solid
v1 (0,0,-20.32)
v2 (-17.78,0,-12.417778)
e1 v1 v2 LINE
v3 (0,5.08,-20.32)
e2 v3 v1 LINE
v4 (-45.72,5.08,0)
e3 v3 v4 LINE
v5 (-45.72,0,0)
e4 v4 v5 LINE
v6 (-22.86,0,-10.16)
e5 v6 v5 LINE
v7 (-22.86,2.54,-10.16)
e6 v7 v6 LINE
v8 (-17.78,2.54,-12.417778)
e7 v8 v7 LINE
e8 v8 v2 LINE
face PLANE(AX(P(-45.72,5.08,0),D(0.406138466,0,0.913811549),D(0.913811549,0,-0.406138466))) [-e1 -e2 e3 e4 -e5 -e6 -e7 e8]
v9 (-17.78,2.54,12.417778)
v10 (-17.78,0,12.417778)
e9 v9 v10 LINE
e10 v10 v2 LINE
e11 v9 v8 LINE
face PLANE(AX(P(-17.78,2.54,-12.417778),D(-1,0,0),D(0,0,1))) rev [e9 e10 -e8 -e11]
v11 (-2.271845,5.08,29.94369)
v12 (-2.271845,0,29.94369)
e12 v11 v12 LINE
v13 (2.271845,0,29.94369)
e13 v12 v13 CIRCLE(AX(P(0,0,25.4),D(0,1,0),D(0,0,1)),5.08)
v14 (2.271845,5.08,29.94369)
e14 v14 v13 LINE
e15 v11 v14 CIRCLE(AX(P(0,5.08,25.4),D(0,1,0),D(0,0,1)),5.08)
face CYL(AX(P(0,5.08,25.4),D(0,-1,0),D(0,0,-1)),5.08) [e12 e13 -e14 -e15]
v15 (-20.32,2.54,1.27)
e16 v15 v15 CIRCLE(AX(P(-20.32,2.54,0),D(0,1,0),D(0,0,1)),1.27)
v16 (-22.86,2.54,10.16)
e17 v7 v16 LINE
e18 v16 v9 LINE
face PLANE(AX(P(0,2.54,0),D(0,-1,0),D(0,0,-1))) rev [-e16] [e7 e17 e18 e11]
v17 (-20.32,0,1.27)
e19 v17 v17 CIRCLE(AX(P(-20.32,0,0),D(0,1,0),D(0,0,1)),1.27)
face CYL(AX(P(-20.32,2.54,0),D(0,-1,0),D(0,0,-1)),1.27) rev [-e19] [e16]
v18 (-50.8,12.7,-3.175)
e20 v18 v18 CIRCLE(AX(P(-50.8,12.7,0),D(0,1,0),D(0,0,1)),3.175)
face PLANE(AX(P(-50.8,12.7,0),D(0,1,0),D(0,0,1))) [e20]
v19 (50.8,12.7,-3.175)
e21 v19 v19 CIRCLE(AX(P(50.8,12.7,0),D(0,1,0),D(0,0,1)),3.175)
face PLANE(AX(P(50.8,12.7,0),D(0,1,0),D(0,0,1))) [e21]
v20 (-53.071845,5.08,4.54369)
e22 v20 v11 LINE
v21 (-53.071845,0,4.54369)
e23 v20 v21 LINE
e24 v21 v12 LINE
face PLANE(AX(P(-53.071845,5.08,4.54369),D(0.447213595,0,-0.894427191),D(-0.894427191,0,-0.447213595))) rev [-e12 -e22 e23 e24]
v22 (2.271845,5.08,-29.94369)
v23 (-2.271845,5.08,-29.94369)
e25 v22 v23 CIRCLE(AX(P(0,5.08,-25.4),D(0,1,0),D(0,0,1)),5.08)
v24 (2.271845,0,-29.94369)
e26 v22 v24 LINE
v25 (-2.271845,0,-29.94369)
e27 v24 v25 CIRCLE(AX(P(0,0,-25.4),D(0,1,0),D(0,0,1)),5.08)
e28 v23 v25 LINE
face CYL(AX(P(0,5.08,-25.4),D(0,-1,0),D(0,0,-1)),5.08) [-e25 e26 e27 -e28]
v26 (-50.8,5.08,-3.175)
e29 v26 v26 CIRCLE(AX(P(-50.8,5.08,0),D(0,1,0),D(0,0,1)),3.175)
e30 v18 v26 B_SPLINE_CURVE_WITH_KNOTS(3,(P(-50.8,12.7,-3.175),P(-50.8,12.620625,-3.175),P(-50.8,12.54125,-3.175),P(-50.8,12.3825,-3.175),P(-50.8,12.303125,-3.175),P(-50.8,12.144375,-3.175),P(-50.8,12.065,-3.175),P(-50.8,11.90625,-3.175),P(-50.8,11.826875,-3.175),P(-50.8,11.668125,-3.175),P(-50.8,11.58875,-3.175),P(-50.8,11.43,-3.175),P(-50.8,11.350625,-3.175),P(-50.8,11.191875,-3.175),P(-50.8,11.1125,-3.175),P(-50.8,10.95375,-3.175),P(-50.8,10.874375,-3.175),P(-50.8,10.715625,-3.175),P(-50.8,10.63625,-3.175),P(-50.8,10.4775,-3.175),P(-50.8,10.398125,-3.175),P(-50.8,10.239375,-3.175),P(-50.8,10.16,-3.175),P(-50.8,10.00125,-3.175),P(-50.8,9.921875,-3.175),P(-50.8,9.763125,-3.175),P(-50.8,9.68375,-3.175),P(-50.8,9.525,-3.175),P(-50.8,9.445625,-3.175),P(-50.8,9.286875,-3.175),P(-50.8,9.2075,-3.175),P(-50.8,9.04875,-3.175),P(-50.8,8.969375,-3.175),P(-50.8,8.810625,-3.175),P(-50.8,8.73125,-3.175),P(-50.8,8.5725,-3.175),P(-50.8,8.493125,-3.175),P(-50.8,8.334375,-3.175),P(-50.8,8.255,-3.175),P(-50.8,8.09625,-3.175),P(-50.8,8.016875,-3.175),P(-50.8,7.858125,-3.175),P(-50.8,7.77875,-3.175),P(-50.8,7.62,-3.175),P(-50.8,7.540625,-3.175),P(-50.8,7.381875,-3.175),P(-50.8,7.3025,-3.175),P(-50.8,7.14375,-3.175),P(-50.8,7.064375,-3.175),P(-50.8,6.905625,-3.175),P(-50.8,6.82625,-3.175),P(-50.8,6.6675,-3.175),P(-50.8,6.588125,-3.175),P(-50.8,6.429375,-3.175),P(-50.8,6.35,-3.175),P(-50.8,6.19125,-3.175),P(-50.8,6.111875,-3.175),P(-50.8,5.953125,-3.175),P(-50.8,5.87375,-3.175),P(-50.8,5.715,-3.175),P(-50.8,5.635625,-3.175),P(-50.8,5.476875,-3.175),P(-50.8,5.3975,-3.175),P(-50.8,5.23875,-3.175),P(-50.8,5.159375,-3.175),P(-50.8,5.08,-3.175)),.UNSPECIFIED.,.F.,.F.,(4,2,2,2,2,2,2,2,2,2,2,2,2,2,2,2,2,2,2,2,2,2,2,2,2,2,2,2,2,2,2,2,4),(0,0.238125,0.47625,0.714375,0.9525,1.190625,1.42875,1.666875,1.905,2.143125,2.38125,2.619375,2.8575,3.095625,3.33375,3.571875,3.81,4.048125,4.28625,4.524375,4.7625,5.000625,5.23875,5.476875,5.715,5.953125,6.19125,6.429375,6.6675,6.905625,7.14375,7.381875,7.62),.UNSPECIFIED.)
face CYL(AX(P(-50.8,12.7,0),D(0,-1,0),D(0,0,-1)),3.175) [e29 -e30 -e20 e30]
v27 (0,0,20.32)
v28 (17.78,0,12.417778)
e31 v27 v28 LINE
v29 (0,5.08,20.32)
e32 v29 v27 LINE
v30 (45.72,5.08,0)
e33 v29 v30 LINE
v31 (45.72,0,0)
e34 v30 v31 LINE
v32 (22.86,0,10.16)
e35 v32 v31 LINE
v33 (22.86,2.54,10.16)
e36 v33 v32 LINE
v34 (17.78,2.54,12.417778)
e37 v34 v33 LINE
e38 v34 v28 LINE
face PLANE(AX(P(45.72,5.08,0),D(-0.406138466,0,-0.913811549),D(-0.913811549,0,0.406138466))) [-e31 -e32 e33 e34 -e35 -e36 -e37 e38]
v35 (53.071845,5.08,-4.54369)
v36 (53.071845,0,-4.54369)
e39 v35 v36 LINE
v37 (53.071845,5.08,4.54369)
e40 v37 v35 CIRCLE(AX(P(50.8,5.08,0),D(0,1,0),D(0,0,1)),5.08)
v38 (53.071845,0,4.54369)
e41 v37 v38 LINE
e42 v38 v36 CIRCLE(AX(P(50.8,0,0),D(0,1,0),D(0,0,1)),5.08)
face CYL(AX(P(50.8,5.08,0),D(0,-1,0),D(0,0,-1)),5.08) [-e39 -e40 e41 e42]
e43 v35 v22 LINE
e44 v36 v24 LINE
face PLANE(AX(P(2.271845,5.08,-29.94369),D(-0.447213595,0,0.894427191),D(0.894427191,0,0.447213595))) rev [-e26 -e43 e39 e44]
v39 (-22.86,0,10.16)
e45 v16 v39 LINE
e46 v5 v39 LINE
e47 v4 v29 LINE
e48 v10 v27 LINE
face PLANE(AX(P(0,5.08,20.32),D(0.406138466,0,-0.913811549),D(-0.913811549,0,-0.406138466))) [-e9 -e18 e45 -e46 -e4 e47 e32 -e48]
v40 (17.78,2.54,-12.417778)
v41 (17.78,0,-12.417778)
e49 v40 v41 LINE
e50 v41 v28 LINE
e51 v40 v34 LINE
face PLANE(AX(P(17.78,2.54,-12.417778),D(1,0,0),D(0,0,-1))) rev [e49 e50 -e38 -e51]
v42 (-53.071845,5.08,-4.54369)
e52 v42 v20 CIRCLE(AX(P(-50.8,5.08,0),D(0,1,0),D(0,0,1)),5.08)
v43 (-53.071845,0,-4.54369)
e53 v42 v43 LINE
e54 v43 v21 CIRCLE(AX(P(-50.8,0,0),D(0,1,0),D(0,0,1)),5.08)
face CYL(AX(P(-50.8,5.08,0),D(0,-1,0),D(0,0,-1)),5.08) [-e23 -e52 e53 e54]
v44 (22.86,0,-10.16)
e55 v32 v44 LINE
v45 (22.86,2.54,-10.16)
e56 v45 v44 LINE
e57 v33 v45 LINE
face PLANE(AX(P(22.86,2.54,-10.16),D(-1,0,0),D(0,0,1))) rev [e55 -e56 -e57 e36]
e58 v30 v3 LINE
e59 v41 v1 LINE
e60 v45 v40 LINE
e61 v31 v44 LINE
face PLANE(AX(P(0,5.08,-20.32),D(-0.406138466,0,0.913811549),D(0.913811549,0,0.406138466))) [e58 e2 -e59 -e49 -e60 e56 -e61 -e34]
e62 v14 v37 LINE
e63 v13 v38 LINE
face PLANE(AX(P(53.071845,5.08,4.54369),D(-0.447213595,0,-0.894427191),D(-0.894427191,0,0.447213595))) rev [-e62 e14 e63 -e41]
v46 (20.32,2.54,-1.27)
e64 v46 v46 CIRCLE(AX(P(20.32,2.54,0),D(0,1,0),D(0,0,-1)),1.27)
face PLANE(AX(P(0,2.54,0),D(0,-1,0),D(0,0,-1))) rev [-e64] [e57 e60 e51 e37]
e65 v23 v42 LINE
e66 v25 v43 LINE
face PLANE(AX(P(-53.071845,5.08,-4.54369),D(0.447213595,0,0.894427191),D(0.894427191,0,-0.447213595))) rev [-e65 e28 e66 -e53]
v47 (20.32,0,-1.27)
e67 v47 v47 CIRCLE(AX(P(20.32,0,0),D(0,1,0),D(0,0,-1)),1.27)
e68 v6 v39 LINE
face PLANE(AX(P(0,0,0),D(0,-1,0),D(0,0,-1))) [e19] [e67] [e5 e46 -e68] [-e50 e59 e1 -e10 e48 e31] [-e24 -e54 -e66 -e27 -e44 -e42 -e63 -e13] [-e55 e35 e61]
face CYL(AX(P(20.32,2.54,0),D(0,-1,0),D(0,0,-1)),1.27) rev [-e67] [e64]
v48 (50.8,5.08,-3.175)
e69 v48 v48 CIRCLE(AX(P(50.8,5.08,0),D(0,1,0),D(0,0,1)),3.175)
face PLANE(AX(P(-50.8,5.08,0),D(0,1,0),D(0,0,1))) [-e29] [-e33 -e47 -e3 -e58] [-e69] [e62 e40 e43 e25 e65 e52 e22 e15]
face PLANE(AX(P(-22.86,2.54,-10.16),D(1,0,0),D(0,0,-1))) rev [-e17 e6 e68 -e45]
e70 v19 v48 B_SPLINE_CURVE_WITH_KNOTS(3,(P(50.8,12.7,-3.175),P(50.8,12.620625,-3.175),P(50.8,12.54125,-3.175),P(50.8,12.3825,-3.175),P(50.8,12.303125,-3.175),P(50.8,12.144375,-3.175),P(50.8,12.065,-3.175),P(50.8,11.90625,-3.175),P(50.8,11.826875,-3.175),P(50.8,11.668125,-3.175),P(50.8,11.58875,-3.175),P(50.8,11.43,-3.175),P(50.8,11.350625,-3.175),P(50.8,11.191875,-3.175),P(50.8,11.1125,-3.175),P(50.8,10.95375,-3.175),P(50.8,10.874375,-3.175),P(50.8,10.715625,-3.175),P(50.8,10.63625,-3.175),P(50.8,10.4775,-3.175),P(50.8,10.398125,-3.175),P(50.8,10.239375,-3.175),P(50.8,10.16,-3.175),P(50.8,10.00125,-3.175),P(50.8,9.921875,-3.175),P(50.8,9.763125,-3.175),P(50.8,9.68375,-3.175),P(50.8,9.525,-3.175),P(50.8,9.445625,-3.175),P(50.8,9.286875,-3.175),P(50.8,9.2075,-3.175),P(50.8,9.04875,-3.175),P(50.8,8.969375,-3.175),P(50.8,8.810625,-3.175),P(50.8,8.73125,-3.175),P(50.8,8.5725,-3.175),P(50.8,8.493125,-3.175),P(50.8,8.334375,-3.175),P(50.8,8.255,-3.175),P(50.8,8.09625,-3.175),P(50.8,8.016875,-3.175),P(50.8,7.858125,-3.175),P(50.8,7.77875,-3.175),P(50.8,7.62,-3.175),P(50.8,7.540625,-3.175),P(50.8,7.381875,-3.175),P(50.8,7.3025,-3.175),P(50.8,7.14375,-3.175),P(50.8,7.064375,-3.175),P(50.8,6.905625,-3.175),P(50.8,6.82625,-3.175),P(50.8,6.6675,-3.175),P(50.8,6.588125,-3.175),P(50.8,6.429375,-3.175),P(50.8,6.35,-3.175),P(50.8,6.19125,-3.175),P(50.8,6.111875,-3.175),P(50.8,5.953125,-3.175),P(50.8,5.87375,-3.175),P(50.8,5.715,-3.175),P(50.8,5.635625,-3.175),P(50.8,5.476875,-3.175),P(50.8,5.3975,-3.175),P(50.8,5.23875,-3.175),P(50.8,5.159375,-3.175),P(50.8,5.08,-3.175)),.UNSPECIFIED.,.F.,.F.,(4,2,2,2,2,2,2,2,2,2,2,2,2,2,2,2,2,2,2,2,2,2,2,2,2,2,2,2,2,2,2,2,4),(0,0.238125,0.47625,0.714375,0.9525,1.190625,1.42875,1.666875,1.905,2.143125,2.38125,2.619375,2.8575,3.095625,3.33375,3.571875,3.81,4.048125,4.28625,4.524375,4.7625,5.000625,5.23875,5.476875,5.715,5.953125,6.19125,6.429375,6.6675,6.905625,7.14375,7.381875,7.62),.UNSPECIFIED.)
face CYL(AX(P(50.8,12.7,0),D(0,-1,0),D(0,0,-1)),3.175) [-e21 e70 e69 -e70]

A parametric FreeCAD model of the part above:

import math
import FreeCAD as App
import Part
import Sketcher
from FreeCAD import Vector
Q = App.Units.Quantity

doc = App.newDocument("Part")
params = doc.addObject("Spreadsheet::Sheet", "Params")
for row, (alias, value) in enumerate([
    ("sketch1_diameter", "0.1 in"),
    ("sketch1_height", "0.8 in"),
    ("pad1_length", "0.1 in"),
    ("sketch2_diameter", "0.1 in"),
    ("sketch2_height", "0.8 in"),
    ("pad2_length", "0.1 in"),
    ("sketch3_radius", "0.2 in"),
    ("pad3_length", "0.2 in"),
    ("sketch4_diameter", "0.25 in"),
    ("pad4_length", "0.3 in"),
], start=1):
    params.set(f"A{row}", alias)
    params.set(f"B{row}", "=" + value)
    params.setAlias(f"B{row}", alias)

body = doc.addObject("PartDesign::Body", "Body")

# Sketch on XZ plane
sketch1 = body.newObject("Sketcher::SketchObject", "Sketch")
sketch1.AttachmentSupport = (doc.getObject("XZ_Plane"), [""])
sketch1.MapMode = "FlatFace"
sketch1.addGeometry([
    Part.LineSegment(Vector(-22.9, -10.2, 0), Vector(-22.9, 10.2, 0)),  # 0
    Part.LineSegment(Vector(-22.9, 10.2, 0), Vector(-17.8, 12.4, 0)),  # 1
    Part.LineSegment(Vector(-17.8, 12.4, 0), Vector(-17.8, -12.4, 0)),  # 2
    Part.LineSegment(Vector(-17.8, -12.4, 0), Vector(-22.9, -10.2, 0)),  # 3
    Part.Circle(Vector(-20.3, 0, 0), Vector(0, 0, 1), 1.3),  # 4
], False)
sketch1.addConstraint([
    Sketcher.Constraint("Coincident", 0, 2, 1, 1),
    Sketcher.Constraint("Coincident", 1, 2, 2, 1),
    Sketcher.Constraint("Coincident", 2, 2, 3, 1),
    Sketcher.Constraint("Coincident", 3, 2, 0, 1),
    Sketcher.Constraint("Vertical", 0),
    Sketcher.Constraint("Vertical", 2),
    Sketcher.Constraint("PointOnObject", 4, 3, -1),
    Sketcher.Constraint("Equal", 1, 3),
    Sketcher.Constraint("Diameter", 4, Q("0.1 in")),
    Sketcher.Constraint("DistanceY", 0, 1, 0, 2, Q("0.8 in")),
    Sketcher.Constraint("DistanceX", 4, 3, -1, 1, Q("0.8 in")),
    Sketcher.Constraint("DistanceX", 0, 2, -1, 1, Q("0.9 in")),
    Sketcher.Constraint("DistanceY", -1, 1, 0, 2, Q("0.4 in")),
    Sketcher.Constraint("DistanceX", 1, 2, -1, 1, Q("0.7 in")),
    Sketcher.Constraint("DistanceY", 2, 2, 2, 1, Q("24.835556 mm")),
])
sketch1.setExpression("Constraints[8]", "Params.sketch1_diameter")
sketch1.setExpression("Constraints[9]", "Params.sketch1_height")
pad1 = body.newObject("PartDesign::Pad", "Pad")
pad1.Profile = sketch1
pad1.setExpression("Length", "Params.pad1_length")
pad1.Reversed = True
body2 = doc.addObject("PartDesign::Body", "Body001")

# Sketch on XZ plane
sketch2 = body2.newObject("Sketcher::SketchObject", "Sketch001")
sketch2.AttachmentSupport = (doc.getObject("XZ_Plane001"), [""])
sketch2.MapMode = "FlatFace"
sketch2.addGeometry([
    Part.LineSegment(Vector(22.9, -10.2, 0), Vector(17.8, -12.4, 0)),  # 0
    Part.LineSegment(Vector(17.8, -12.4, 0), Vector(17.8, 12.4, 0)),  # 1
    Part.LineSegment(Vector(17.8, 12.4, 0), Vector(22.9, 10.2, 0)),  # 2
    Part.LineSegment(Vector(22.9, 10.2, 0), Vector(22.9, -10.2, 0)),  # 3
    Part.Circle(Vector(20.3, 0, 0), Vector(0, 0, 1), 1.3),  # 4
], False)
sketch2.addConstraint([
    Sketcher.Constraint("Coincident", 0, 2, 1, 1),
    Sketcher.Constraint("Coincident", 1, 2, 2, 1),
    Sketcher.Constraint("Coincident", 2, 2, 3, 1),
    Sketcher.Constraint("Coincident", 3, 2, 0, 1),
    Sketcher.Constraint("Vertical", 1),
    Sketcher.Constraint("Vertical", 3),
    Sketcher.Constraint("PointOnObject", 4, 3, -1),
    Sketcher.Constraint("Equal", 0, 2),
    Sketcher.Constraint("Diameter", 4, Q("0.1 in")),
    Sketcher.Constraint("DistanceY", 3, 2, 3, 1, Q("0.8 in")),
    Sketcher.Constraint("DistanceX", -1, 1, 4, 3, Q("0.8 in")),
    Sketcher.Constraint("DistanceX", -1, 1, 0, 2, Q("0.7 in")),
    Sketcher.Constraint("DistanceX", -1, 1, 2, 2, Q("0.9 in")),
    Sketcher.Constraint("DistanceY", -1, 1, 2, 2, Q("0.4 in")),
    Sketcher.Constraint("DistanceY", 1, 1, 1, 2, Q("24.835556 mm")),
])
sketch2.setExpression("Constraints[8]", "Params.sketch2_diameter")
sketch2.setExpression("Constraints[9]", "Params.sketch2_height")
pad2 = body2.newObject("PartDesign::Pad", "Pad001")
pad2.Profile = sketch2
pad2.setExpression("Length", "Params.pad2_length")
pad2.Reversed = True
body.AllowCompound = True
doc.recompute()

boolean = body.newObject("PartDesign::Boolean", "Boolean")
boolean.Type = "Fuse"
boolean.addObjects([body2])

# Sketch on XZ plane
sketch3 = body.newObject("Sketcher::SketchObject", "Sketch002")
sketch3.AttachmentSupport = (doc.getObject("XZ_Plane"), [""])
sketch3.MapMode = "FlatFace"
sketch3.addGeometry([
    Part.LineSegment(Vector(-53.1, 4.5, 0), Vector(-2.3, 29.9, 0)),  # 0
    Part.ArcOfCircle(Part.Circle(Vector(0, 25.4, 0), Vector(0, 0, 1), 5.1), math.radians(63), math.radians(117)),  # 1
    Part.LineSegment(Vector(2.3, 29.9, 0), Vector(53.1, 4.5, 0)),  # 2
    Part.ArcOfCircle(Part.Circle(Vector(50.8, 0, 0), Vector(0, 0, 1), 5.1), math.radians(-63), math.radians(63)),  # 3
    Part.LineSegment(Vector(53.1, -4.5, 0), Vector(2.3, -29.9, 0)),  # 4
    Part.ArcOfCircle(Part.Circle(Vector(0, -25.4, 0), Vector(0, 0, 1), 5.1), math.radians(-117), math.radians(-63)),  # 5
    Part.LineSegment(Vector(-2.3, -29.9, 0), Vector(-53.1, -4.5, 0)),  # 6
    Part.ArcOfCircle(Part.Circle(Vector(-50.8, 0, 0), Vector(0, 0, 1), 5.1), math.radians(117), math.radians(243)),  # 7
    Part.LineSegment(Vector(0, 20.3, 0), Vector(-45.7, 0, 0)),  # 8
    Part.LineSegment(Vector(-45.7, 0, 0), Vector(0, -20.3, 0)),  # 9
    Part.LineSegment(Vector(0, -20.3, 0), Vector(45.7, 0, 0)),  # 10
    Part.LineSegment(Vector(45.7, 0, 0), Vector(0, 20.3, 0)),  # 11
], False)
sketch3.addConstraint([
    Sketcher.Constraint("Tangent", 0, 2, 1, 2),
    Sketcher.Constraint("Tangent", 1, 1, 2, 1),
    Sketcher.Constraint("Tangent", 2, 2, 3, 2),
    Sketcher.Constraint("Tangent", 3, 1, 4, 1),
    Sketcher.Constraint("Tangent", 4, 2, 5, 2),
    Sketcher.Constraint("Tangent", 5, 1, 6, 1),
    Sketcher.Constraint("Tangent", 6, 2, 7, 2),
    Sketcher.Constraint("Tangent", 7, 1, 0, 1),
    Sketcher.Constraint("Coincident", 8, 2, 9, 1),
    Sketcher.Constraint("Coincident", 9, 2, 10, 1),
    Sketcher.Constraint("Coincident", 10, 2, 11, 1),
    Sketcher.Constraint("Coincident", 11, 2, 8, 1),
    Sketcher.Constraint("Equal", 1, 3),
    Sketcher.Constraint("Equal", 3, 5),
    Sketcher.Constraint("Equal", 5, 7),
    Sketcher.Constraint("Symmetric", 1, 3, 5, 3, -1, 1),
    Sketcher.Constraint("Symmetric", 3, 3, 7, 3, -1, 1),
    Sketcher.Constraint("Symmetric", 8, 2, 10, 2, -1, 1),
    Sketcher.Constraint("Symmetric", 9, 2, 11, 2, -1, 1),
    Sketcher.Constraint("Symmetric", 0, 2, 1, 1, -2),
    Sketcher.Constraint("PointOnObject", 8, 2, -1),
    Sketcher.Constraint("PointOnObject", 9, 2, -2),
    Sketcher.Constraint("Radius", 1, Q("0.2 in")),
    Sketcher.Constraint("DistanceY", -1, 1, 1, 3, Q("1 in")),
    Sketcher.Constraint("DistanceX", -1, 1, 3, 3, Q("2 in")),
    Sketcher.Constraint("DistanceX", 8, 2, -1, 1, Q("1.8 in")),
    Sketcher.Constraint("DistanceY", 9, 2, -1, 1, Q("0.8 in")),
])
sketch3.setExpression("Constraints[22]", "Params.sketch3_radius")
pad3 = body.newObject("PartDesign::Pad", "Pad002")
pad3.Profile = sketch3
pad3.setExpression("Length", "Params.pad3_length")
pad3.Reversed = True

# Sketch on XZ plane
sketch4 = body.newObject("Sketcher::SketchObject", "Sketch003")
sketch4.AttachmentSupport = (doc.getObject("XZ_Plane"), [""])
sketch4.MapMode = "FlatFace"
sketch4.AttachmentOffset = App.Placement(Vector(0, 0, -0.2 * 25.4), App.Rotation())
sketch4.addGeometry([
    Part.Circle(Vector(-50.8, 0, 0), Vector(0, 0, 1), 3.2),
    Part.Circle(Vector(50.8, 0, 0), Vector(0, 0, 1), 3.2),
], False)
sketch4.addConstraint([
    Sketcher.Constraint("Equal", 0, 1),
    Sketcher.Constraint("Symmetric", 0, 3, 1, 3, -1, 1),
    Sketcher.Constraint("PointOnObject", 0, 3, -1),
    Sketcher.Constraint("Diameter", 0, Q("0.25 in")),
    Sketcher.Constraint("DistanceX", 0, 3, -1, 1, Q("2 in")),
])
sketch4.setExpression("Constraints[3]", "Params.sketch4_diameter")
pad4 = body.newObject("PartDesign::Pad", "Pad003")
pad4.Profile = sketch4
pad4.setExpression("Length", "Params.pad4_length")
pad4.Reversed = True

doc.recompute()
